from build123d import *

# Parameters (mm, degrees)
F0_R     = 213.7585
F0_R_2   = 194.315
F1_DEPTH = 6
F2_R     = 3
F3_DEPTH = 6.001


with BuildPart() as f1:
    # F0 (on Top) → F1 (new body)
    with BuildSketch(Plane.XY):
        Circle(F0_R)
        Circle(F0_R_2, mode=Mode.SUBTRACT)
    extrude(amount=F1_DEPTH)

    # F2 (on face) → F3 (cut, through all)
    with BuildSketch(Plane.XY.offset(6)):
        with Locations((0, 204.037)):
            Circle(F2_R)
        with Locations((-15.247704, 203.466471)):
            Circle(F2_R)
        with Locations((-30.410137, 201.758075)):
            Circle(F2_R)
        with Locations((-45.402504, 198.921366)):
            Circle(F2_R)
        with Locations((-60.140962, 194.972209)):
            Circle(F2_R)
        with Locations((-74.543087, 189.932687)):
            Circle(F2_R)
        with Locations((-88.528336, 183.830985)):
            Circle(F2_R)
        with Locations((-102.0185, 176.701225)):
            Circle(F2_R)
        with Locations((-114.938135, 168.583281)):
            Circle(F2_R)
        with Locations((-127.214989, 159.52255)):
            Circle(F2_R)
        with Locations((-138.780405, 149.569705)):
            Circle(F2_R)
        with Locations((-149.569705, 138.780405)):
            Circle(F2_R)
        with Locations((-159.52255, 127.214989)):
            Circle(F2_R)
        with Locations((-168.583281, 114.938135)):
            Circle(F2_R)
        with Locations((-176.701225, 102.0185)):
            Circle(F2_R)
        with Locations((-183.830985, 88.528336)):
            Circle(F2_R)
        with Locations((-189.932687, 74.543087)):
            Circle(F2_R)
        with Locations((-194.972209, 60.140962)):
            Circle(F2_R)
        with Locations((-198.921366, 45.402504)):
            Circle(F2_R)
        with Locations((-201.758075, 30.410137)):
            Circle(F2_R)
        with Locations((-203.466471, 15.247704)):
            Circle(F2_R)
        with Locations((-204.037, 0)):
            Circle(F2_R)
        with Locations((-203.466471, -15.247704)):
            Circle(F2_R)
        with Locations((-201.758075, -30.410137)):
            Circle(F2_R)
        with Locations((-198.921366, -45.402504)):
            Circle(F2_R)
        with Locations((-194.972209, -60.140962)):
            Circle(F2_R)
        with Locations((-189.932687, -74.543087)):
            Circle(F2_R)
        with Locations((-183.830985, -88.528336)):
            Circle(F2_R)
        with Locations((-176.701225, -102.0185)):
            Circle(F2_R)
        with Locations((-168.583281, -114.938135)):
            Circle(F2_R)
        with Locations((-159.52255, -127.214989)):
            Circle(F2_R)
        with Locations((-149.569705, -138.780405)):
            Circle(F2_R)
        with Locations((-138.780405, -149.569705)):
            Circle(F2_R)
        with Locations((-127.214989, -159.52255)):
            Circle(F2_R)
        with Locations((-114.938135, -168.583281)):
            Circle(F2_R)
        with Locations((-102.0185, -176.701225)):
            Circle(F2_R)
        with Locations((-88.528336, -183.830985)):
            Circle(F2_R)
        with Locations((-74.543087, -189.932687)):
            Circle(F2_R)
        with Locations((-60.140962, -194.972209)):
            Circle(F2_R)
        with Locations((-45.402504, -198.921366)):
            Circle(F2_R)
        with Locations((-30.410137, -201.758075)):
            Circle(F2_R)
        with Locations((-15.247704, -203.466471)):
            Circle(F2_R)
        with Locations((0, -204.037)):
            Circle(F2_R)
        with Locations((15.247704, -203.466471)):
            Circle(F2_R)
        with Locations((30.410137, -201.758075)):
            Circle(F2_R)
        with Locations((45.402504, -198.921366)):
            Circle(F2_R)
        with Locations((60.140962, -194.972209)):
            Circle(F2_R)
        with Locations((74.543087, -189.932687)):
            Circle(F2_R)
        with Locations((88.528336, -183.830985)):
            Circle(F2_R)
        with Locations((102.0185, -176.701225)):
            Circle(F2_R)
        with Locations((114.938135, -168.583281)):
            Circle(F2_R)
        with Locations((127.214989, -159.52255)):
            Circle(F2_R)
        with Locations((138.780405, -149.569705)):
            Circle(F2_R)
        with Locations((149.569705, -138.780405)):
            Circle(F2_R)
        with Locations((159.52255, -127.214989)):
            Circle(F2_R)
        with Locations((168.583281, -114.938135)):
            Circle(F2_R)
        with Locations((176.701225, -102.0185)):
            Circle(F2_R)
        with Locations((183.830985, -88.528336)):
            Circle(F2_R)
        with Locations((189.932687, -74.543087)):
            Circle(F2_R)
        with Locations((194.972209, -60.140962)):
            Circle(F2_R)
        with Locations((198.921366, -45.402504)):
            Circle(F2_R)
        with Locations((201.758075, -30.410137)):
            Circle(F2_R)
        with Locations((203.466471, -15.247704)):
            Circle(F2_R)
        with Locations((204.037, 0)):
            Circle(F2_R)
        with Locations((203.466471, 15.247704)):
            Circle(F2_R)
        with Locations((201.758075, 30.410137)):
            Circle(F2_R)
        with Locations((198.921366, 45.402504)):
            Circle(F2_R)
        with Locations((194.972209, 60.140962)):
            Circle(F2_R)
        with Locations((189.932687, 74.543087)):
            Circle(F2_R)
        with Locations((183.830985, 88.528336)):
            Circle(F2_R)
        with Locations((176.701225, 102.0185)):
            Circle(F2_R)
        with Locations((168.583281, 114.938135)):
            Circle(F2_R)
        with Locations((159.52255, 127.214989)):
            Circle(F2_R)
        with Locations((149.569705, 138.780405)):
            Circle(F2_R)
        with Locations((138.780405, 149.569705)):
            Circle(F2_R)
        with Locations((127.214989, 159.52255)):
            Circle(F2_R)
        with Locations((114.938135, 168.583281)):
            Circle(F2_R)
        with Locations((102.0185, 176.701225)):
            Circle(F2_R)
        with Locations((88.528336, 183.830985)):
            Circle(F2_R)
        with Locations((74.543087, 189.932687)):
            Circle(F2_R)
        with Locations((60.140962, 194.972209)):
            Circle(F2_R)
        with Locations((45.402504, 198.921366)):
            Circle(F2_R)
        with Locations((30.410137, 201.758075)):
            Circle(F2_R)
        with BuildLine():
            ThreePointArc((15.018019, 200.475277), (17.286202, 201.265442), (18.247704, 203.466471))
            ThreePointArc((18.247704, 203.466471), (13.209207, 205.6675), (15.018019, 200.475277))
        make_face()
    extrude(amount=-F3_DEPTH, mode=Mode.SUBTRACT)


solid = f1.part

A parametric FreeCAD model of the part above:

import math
import FreeCAD as App
import Part
import Sketcher

doc = App.newDocument("Part")
body = doc.addObject("PartDesign::Body", "Body")

# Sketch on XY plane
sketch1 = body.newObject("Sketcher::SketchObject", "Sketch")
sketch1.AttachmentSupport = (doc.getObject("XY_Plane"), [""])
sketch1.MapMode = "FlatFace"
sketch1.addGeometry([
    Part.Circle(App.Vector(0, 0, 0), App.Vector(0, 0, 1), 214),
    Part.Circle(App.Vector(0, 0, 0), App.Vector(0, 0, 1), 194),
], False)
sketch1.addConstraint([
    Sketcher.Constraint("Coincident", 0, 3, -1, 1),
    Sketcher.Constraint("Coincident", 1, 3, -1, 1),
    Sketcher.Constraint("Diameter", 1, 388.63),
    Sketcher.Constraint("Diameter", 0, 427.517),
])
pad1 = body.newObject("PartDesign::Pad", "Pad")
pad1.Profile = sketch1
pad1.Length = 6

# Sketch on XY plane
sketch2 = body.newObject("Sketcher::SketchObject", "Sketch001")
sketch2.AttachmentSupport = (doc.getObject("XY_Plane"), [""])
sketch2.MapMode = "FlatFace"
sketch2.AttachmentOffset = App.Placement(App.Vector(0, 0, 6), App.Rotation())
sketch2.addGeometry([
    Part.Circle(App.Vector(0, 204, 0), App.Vector(0, 0, 1), 3),  # 0
    Part.Circle(App.Vector(-15.2, 203.5, 0), App.Vector(0, 0, 1), 3),  # 1
    Part.Circle(App.Vector(-30.4, 201.8, 0), App.Vector(0, 0, 1), 3),  # 2
    Part.Circle(App.Vector(-45.4, 198.9, 0), App.Vector(0, 0, 1), 3),  # 3
    Part.Circle(App.Vector(-60.1, 195, 0), App.Vector(0, 0, 1), 3),  # 4
    Part.Circle(App.Vector(-74.5, 189.9, 0), App.Vector(0, 0, 1), 3),  # 5
    Part.Circle(App.Vector(-88.5, 183.8, 0), App.Vector(0, 0, 1), 3),  # 6
    Part.Circle(App.Vector(-102, 176.7, 0), App.Vector(0, 0, 1), 3),  # 7
    Part.Circle(App.Vector(-114.9, 168.6, 0), App.Vector(0, 0, 1), 3),  # 8
    Part.Circle(App.Vector(-127.2, 159.5, 0), App.Vector(0, 0, 1), 3),  # 9
    Part.Circle(App.Vector(-138.8, 149.6, 0), App.Vector(0, 0, 1), 3),  # 10
    Part.Circle(App.Vector(-149.6, 138.8, 0), App.Vector(0, 0, 1), 3),  # 11
    Part.Circle(App.Vector(-159.5, 127.2, 0), App.Vector(0, 0, 1), 3),  # 12
    Part.Circle(App.Vector(-168.6, 114.9, 0), App.Vector(0, 0, 1), 3),  # 13
    Part.Circle(App.Vector(-176.7, 102, 0), App.Vector(0, 0, 1), 3),  # 14
    Part.Circle(App.Vector(-183.8, 88.5, 0), App.Vector(0, 0, 1), 3),  # 15
    Part.Circle(App.Vector(-189.9, 74.5, 0), App.Vector(0, 0, 1), 3),  # 16
    Part.Circle(App.Vector(-195, 60.1, 0), App.Vector(0, 0, 1), 3),  # 17
    Part.Circle(App.Vector(-198.9, 45.4, 0), App.Vector(0, 0, 1), 3),  # 18
    Part.Circle(App.Vector(-201.8, 30.4, 0), App.Vector(0, 0, 1), 3),  # 19
    Part.Circle(App.Vector(-203.5, 15.2, 0), App.Vector(0, 0, 1), 3),  # 20
    Part.Circle(App.Vector(-204, 0, 0), App.Vector(0, 0, 1), 3),  # 21
    Part.Circle(App.Vector(-203.5, -15.2, 0), App.Vector(0, 0, 1), 3),  # 22
    Part.Circle(App.Vector(-201.8, -30.4, 0), App.Vector(0, 0, 1), 3),  # 23
    Part.Circle(App.Vector(-198.9, -45.4, 0), App.Vector(0, 0, 1), 3),  # 24
    Part.Circle(App.Vector(-195, -60.1, 0), App.Vector(0, 0, 1), 3),  # 25
    Part.Circle(App.Vector(-189.9, -74.5, 0), App.Vector(0, 0, 1), 3),  # 26
    Part.Circle(App.Vector(-183.8, -88.5, 0), App.Vector(0, 0, 1), 3),  # 27
    Part.Circle(App.Vector(-176.7, -102, 0), App.Vector(0, 0, 1), 3),  # 28
    Part.Circle(App.Vector(-168.6, -114.9, 0), App.Vector(0, 0, 1), 3),  # 29
    Part.Circle(App.Vector(-159.5, -127.2, 0), App.Vector(0, 0, 1), 3),  # 30
    Part.Circle(App.Vector(-149.6, -138.8, 0), App.Vector(0, 0, 1), 3),  # 31
    Part.Circle(App.Vector(-138.8, -149.6, 0), App.Vector(0, 0, 1), 3),  # 32
    Part.Circle(App.Vector(-127.2, -159.5, 0), App.Vector(0, 0, 1), 3),  # 33
    Part.Circle(App.Vector(-114.9, -168.6, 0), App.Vector(0, 0, 1), 3),  # 34
    Part.Circle(App.Vector(-102, -176.7, 0), App.Vector(0, 0, 1), 3),  # 35
    Part.Circle(App.Vector(-88.5, -183.8, 0), App.Vector(0, 0, 1), 3),  # 36
    Part.Circle(App.Vector(-74.5, -189.9, 0), App.Vector(0, 0, 1), 3),  # 37
    Part.Circle(App.Vector(-60.1, -195, 0), App.Vector(0, 0, 1), 3),  # 38
    Part.Circle(App.Vector(-45.4, -198.9, 0), App.Vector(0, 0, 1), 3),  # 39
    Part.Circle(App.Vector(-30.4, -201.8, 0), App.Vector(0, 0, 1), 3),  # 40
    Part.Circle(App.Vector(-15.2, -203.5, 0), App.Vector(0, 0, 1), 3),  # 41
    Part.Circle(App.Vector(0, -204, 0), App.Vector(0, 0, 1), 3),  # 42
    Part.Circle(App.Vector(15.2, -203.5, 0), App.Vector(0, 0, 1), 3),  # 43
    Part.Circle(App.Vector(30.4, -201.8, 0), App.Vector(0, 0, 1), 3),  # 44
    Part.Circle(App.Vector(45.4, -198.9, 0), App.Vector(0, 0, 1), 3),  # 45
    Part.Circle(App.Vector(60.1, -195, 0), App.Vector(0, 0, 1), 3),  # 46
    Part.Circle(App.Vector(74.5, -189.9, 0), App.Vector(0, 0, 1), 3),  # 47
    Part.Circle(App.Vector(88.5, -183.8, 0), App.Vector(0, 0, 1), 3),  # 48
    Part.Circle(App.Vector(102, -176.7, 0), App.Vector(0, 0, 1), 3),  # 49
    Part.Circle(App.Vector(114.9, -168.6, 0), App.Vector(0, 0, 1), 3),  # 50
    Part.Circle(App.Vector(127.2, -159.5, 0), App.Vector(0, 0, 1), 3),  # 51
    Part.Circle(App.Vector(138.8, -149.6, 0), App.Vector(0, 0, 1), 3),  # 52
    Part.Circle(App.Vector(149.6, -138.8, 0), App.Vector(0, 0, 1), 3),  # 53
    Part.Circle(App.Vector(159.5, -127.2, 0), App.Vector(0, 0, 1), 3),  # 54
    Part.Circle(App.Vector(168.6, -114.9, 0), App.Vector(0, 0, 1), 3),  # 55
    Part.Circle(App.Vector(176.7, -102, 0), App.Vector(0, 0, 1), 3),  # 56
    Part.Circle(App.Vector(183.8, -88.5, 0), App.Vector(0, 0, 1), 3),  # 57
    Part.Circle(App.Vector(189.9, -74.5, 0), App.Vector(0, 0, 1), 3),  # 58
    Part.Circle(App.Vector(195, -60.1, 0), App.Vector(0, 0, 1), 3),  # 59
    Part.Circle(App.Vector(198.9, -45.4, 0), App.Vector(0, 0, 1), 3),  # 60
    Part.Circle(App.Vector(201.8, -30.4, 0), App.Vector(0, 0, 1), 3),  # 61
    Part.Circle(App.Vector(203.5, -15.2, 0), App.Vector(0, 0, 1), 3),  # 62
    Part.Circle(App.Vector(204, 0, 0), App.Vector(0, 0, 1), 3),  # 63
    Part.Circle(App.Vector(203.5, 15.2, 0), App.Vector(0, 0, 1), 3),  # 64
    Part.Circle(App.Vector(201.8, 30.4, 0), App.Vector(0, 0, 1), 3),  # 65
    Part.Circle(App.Vector(198.9, 45.4, 0), App.Vector(0, 0, 1), 3),  # 66
    Part.Circle(App.Vector(195, 60.1, 0), App.Vector(0, 0, 1), 3),  # 67
    Part.Circle(App.Vector(189.9, 74.5, 0), App.Vector(0, 0, 1), 3),  # 68
    Part.Circle(App.Vector(183.8, 88.5, 0), App.Vector(0, 0, 1), 3),  # 69
    Part.Circle(App.Vector(176.7, 102, 0), App.Vector(0, 0, 1), 3),  # 70
    Part.Circle(App.Vector(168.6, 114.9, 0), App.Vector(0, 0, 1), 3),  # 71
    Part.Circle(App.Vector(159.5, 127.2, 0), App.Vector(0, 0, 1), 3),  # 72
    Part.Circle(App.Vector(149.6, 138.8, 0), App.Vector(0, 0, 1), 3),  # 73
    Part.Circle(App.Vector(138.8, 149.6, 0), App.Vector(0, 0, 1), 3),  # 74
    Part.Circle(App.Vector(127.2, 159.5, 0), App.Vector(0, 0, 1), 3),  # 75
    Part.Circle(App.Vector(114.9, 168.6, 0), App.Vector(0, 0, 1), 3),  # 76
    Part.Circle(App.Vector(102, 176.7, 0), App.Vector(0, 0, 1), 3),  # 77
    Part.Circle(App.Vector(88.5, 183.8, 0), App.Vector(0, 0, 1), 3),  # 78
    Part.Circle(App.Vector(74.5, 189.9, 0), App.Vector(0, 0, 1), 3),  # 79
    Part.Circle(App.Vector(60.1, 195, 0), App.Vector(0, 0, 1), 3),  # 80
    Part.Circle(App.Vector(45.4, 198.9, 0), App.Vector(0, 0, 1), 3),  # 81
    Part.Circle(App.Vector(30.4, 201.8, 0), App.Vector(0, 0, 1), 3),  # 82
    Part.ArcOfCircle(Part.Circle(App.Vector(15.2, 203.5, 0), App.Vector(0, 0, 1), 3), math.radians(-94), math.radians(0)),  # 83
    Part.ArcOfCircle(Part.Circle(App.Vector(15.2, 203.5, 0), App.Vector(0, 0, 1), 3), math.radians(0), math.radians(266)),  # 84
], False)
sketch2.addConstraint([
    Sketcher.Constraint("Tangent", 83, 1, 84, 2),
    Sketcher.Constraint("Coincident", 84, 1, 83, 2),
    Sketcher.Constraint("Equal", 0, 1),
    Sketcher.Constraint("Equal", 1, 2),
    Sketcher.Constraint("Equal", 2, 3),
    Sketcher.Constraint("Equal", 3, 4),
    Sketcher.Constraint("Equal", 4, 5),
    Sketcher.Constraint("Equal", 5, 6),
    Sketcher.Constraint("Equal", 6, 7),
    Sketcher.Constraint("Equal", 7, 8),
    Sketcher.Constraint("Equal", 8, 9),
    Sketcher.Constraint("Equal", 9, 10),
    Sketcher.Constraint("Equal", 10, 11),
    Sketcher.Constraint("Equal", 11, 12),
    Sketcher.Constraint("Equal", 12, 13),
    Sketcher.Constraint("Equal", 13, 14),
    Sketcher.Constraint("Equal", 14, 15),
    Sketcher.Constraint("Equal", 15, 16),
    Sketcher.Constraint("Equal", 16, 17),
    Sketcher.Constraint("Equal", 17, 18),
    Sketcher.Constraint("Equal", 18, 19),
    Sketcher.Constraint("Equal", 19, 20),
    Sketcher.Constraint("Equal", 20, 21),
    Sketcher.Constraint("Equal", 21, 22),
    Sketcher.Constraint("Equal", 22, 23),
    Sketcher.Constraint("Equal", 23, 24),
    Sketcher.Constraint("Equal", 24, 25),
    Sketcher.Constraint("Equal", 25, 26),
    Sketcher.Constraint("Equal", 26, 27),
    Sketcher.Constraint("Equal", 27, 28),
    Sketcher.Constraint("Equal", 28, 29),
    Sketcher.Constraint("Equal", 29, 30),
    Sketcher.Constraint("Equal", 30, 31),
    Sketcher.Constraint("Equal", 31, 32),
    Sketcher.Constraint("Equal", 32, 33),
    Sketcher.Constraint("Equal", 33, 34),
    Sketcher.Constraint("Equal", 34, 35),
    Sketcher.Constraint("Equal", 35, 36),
    Sketcher.Constraint("Equal", 36, 37),
    Sketcher.Constraint("Equal", 37, 38),
    Sketcher.Constraint("Equal", 38, 39),
    Sketcher.Constraint("Equal", 39, 40),
    Sketcher.Constraint("Equal", 40, 41),
    Sketcher.Constraint("Equal", 41, 42),
    Sketcher.Constraint("Equal", 42, 43),
    Sketcher.Constraint("Equal", 43, 44),
    Sketcher.Constraint("Equal", 44, 45),
    Sketcher.Constraint("Equal", 45, 46),
    Sketcher.Constraint("Equal", 46, 47),
    Sketcher.Constraint("Equal", 47, 48),
    Sketcher.Constraint("Equal", 48, 49),
    Sketcher.Constraint("Equal", 49, 50),
    Sketcher.Constraint("Equal", 50, 51),
    Sketcher.Constraint("Equal", 51, 52),
    Sketcher.Constraint("Equal", 52, 53),
    Sketcher.Constraint("Equal", 53, 54),
    Sketcher.Constraint("Equal", 54, 55),
    Sketcher.Constraint("Equal", 55, 56),
    Sketcher.Constraint("Equal", 56, 57),
    Sketcher.Constraint("Equal", 57, 58),
    Sketcher.Constraint("Equal", 58, 59),
    Sketcher.Constraint("Equal", 59, 60),
    Sketcher.Constraint("Equal", 60, 61),
    Sketcher.Constraint("Equal", 61, 62),
    Sketcher.Constraint("Equal", 62, 63),
    Sketcher.Constraint("Equal", 63, 64),
    Sketcher.Constraint("Equal", 64, 65),
    Sketcher.Constraint("Equal", 65, 66),
    Sketcher.Constraint("Equal", 66, 67),
    Sketcher.Constraint("Equal", 67, 68),
    Sketcher.Constraint("Equal", 68, 69),
    Sketcher.Constraint("Equal", 69, 70),
    Sketcher.Constraint("Equal", 70, 71),
    Sketcher.Constraint("Equal", 71, 72),
    Sketcher.Constraint("Equal", 72, 73),
    Sketcher.Constraint("Equal", 73, 74),
    Sketcher.Constraint("Equal", 74, 75),
    Sketcher.Constraint("Equal", 75, 76),
    Sketcher.Constraint("Equal", 76, 77),
    Sketcher.Constraint("Equal", 77, 78),
    Sketcher.Constraint("Equal", 78, 79),
    Sketcher.Constraint("Equal", 79, 80),
    Sketcher.Constraint("Equal", 80, 81),
    Sketcher.Constraint("Equal", 81, 82),
    Sketcher.Constraint("Equal", 82, 83),
    Sketcher.Constraint("Symmetric", 0, 3, 42, 3, -1, 1),
    Sketcher.Constraint("Symmetric", 1, 3, 43, 3, -1, 1),
    Sketcher.Constraint("Symmetric", 2, 3, 44, 3, -1, 1),
    Sketcher.Constraint("Symmetric", 3, 3, 45, 3, -1, 1),
    Sketcher.Constraint("Symmetric", 4, 3, 46, 3, -1, 1),
    Sketcher.Constraint("Symmetric", 5, 3, 47, 3, -1, 1),
    Sketcher.Constraint("Symmetric", 6, 3, 48, 3, -1, 1),
    Sketcher.Constraint("Symmetric", 7, 3, 49, 3, -1, 1),
    Sketcher.Constraint("Symmetric", 8, 3, 50, 3, -1, 1),
    Sketcher.Constraint("Symmetric", 9, 3, 51, 3, -1, 1),
    Sketcher.Constraint("Symmetric", 10, 3, 52, 3, -1, 1),
    Sketcher.Constraint("Symmetric", 11, 3, 53, 3, -1, 1),
    Sketcher.Constraint("Symmetric", 12, 3, 54, 3, -1, 1),
    Sketcher.Constraint("Symmetric", 13, 3, 55, 3, -1, 1),
    Sketcher.Constraint("Symmetric", 14, 3, 56, 3, -1, 1),
    Sketcher.Constraint("Symmetric", 15, 3, 57, 3, -1, 1),
    Sketcher.Constraint("Symmetric", 16, 3, 58, 3, -1, 1),
    Sketcher.Constraint("Symmetric", 17, 3, 59, 3, -1, 1),
    Sketcher.Constraint("Symmetric", 18, 3, 60, 3, -1, 1),
    Sketcher.Constraint("Symmetric", 19, 3, 61, 3, -1, 1),
    Sketcher.Constraint("Symmetric", 20, 3, 62, 3, -1, 1),
    Sketcher.Constraint("Symmetric", 21, 3, 63, 3, -1, 1),
    Sketcher.Constraint("Symmetric", 22, 3, 64, 3, -1, 1),
    Sketcher.Constraint("Symmetric", 23, 3, 65, 3, -1, 1),
    Sketcher.Constraint("Symmetric", 24, 3, 66, 3, -1, 1),
    Sketcher.Constraint("Symmetric", 25, 3, 67, 3, -1, 1),
    Sketcher.Constraint("Symmetric", 26, 3, 68, 3, -1, 1),
    Sketcher.Constraint("Symmetric", 27, 3, 69, 3, -1, 1),
    Sketcher.Constraint("Symmetric", 28, 3, 70, 3, -1, 1),
    Sketcher.Constraint("Symmetric", 29, 3, 71, 3, -1, 1),
    Sketcher.Constraint("Symmetric", 30, 3, 72, 3, -1, 1),
    Sketcher.Constraint("Symmetric", 31, 3, 73, 3, -1, 1),
    Sketcher.Constraint("Symmetric", 32, 3, 74, 3, -1, 1),
    Sketcher.Constraint("Symmetric", 33, 3, 75, 3, -1, 1),
    Sketcher.Constraint("Symmetric", 34, 3, 76, 3, -1, 1),
    Sketcher.Constraint("Symmetric", 35, 3, 77, 3, -1, 1),
    Sketcher.Constraint("Symmetric", 36, 3, 78, 3, -1, 1),
    Sketcher.Constraint("Symmetric", 37, 3, 79, 3, -1, 1),
    Sketcher.Constraint("Symmetric", 38, 3, 80, 3, -1, 1),
    Sketcher.Constraint("Symmetric", 39, 3, 81, 3, -1, 1),
    Sketcher.Constraint("Symmetric", 40, 3, 82, 3, -1, 1),
    Sketcher.Constraint("Symmetric", 41, 3, 83, 3, -1, 1),
    Sketcher.Constraint("Symmetric", 41, 3, 43, 3, -2),
    Sketcher.Constraint("Symmetric", 40, 3, 44, 3, -2),
    Sketcher.Constraint("Symmetric", 39, 3, 45, 3, -2),
    Sketcher.Constraint("Symmetric", 38, 3, 46, 3, -2),
    Sketcher.Constraint("Symmetric", 37, 3, 47, 3, -2),
    Sketcher.Constraint("Symmetric", 36, 3, 48, 3, -2),
    Sketcher.Constraint("Symmetric", 35, 3, 49, 3, -2),
    Sketcher.Constraint("Symmetric", 34, 3, 50, 3, -2),
    Sketcher.Constraint("Symmetric", 33, 3, 51, 3, -2),
    Sketcher.Constraint("Symmetric", 32, 3, 52, 3, -2),
    Sketcher.Constraint("Symmetric", 31, 3, 53, 3, -2),
    Sketcher.Constraint("Symmetric", 30, 3, 54, 3, -2),
    Sketcher.Constraint("Symmetric", 29, 3, 55, 3, -2),
    Sketcher.Constraint("Symmetric", 28, 3, 56, 3, -2),
    Sketcher.Constraint("Symmetric", 27, 3, 57, 3, -2),
    Sketcher.Constraint("Symmetric", 26, 3, 58, 3, -2),
    Sketcher.Constraint("Symmetric", 25, 3, 59, 3, -2),
    Sketcher.Constraint("Symmetric", 24, 3, 60, 3, -2),
    Sketcher.Constraint("Symmetric", 23, 3, 61, 3, -2),
    Sketcher.Constraint("Symmetric", 22, 3, 62, 3, -2),
    Sketcher.Constraint("PointOnObject", 0, 3, -2),
    Sketcher.Constraint("PointOnObject", 21, 3, -1),
    Sketcher.Constraint("Horizontal", 83, 3, 84, 1),
    Sketcher.Constraint("Diameter", 0, 6.0),
    Sketcher.Constraint("DistanceY", -1, 1, 0, 3, 204.037),
    Sketcher.Constraint("DistanceX", 21, 3, -1, 1, 204.037),
    Sketcher.Constraint("DistanceX", 7, 3, -1, 1, 102.0185),
    Sketcher.Constraint("DistanceY", -1, 1, 14, 3, 102.0185),
    Sketcher.Constraint("DistanceY", -1, 1, 1, 3, 203.466471),
    Sketcher.Constraint("DistanceY", -1, 1, 4, 3, 194.972209),
    Sketcher.Constraint("DistanceY", -1, 1, 8, 3, 168.583281),
    Sketcher.Constraint("DistanceX", 9, 3, -1, 1, 127.214989),
    Sketcher.Constraint("DistanceY", -1, 1, 9, 3, 159.52255),
    Sketcher.Constraint("DistanceX", 12, 3, -1, 1, 159.52255),
    Sketcher.Constraint("DistanceY", -1, 1, 12, 3, 127.214989),
    Sketcher.Constraint("DistanceX", 13, 3, -1, 1, 168.583281),
    Sketcher.Constraint("DistanceX", 17, 3, -1, 1, 194.972209),
    Sketcher.Constraint("DistanceX", 20, 3, -1, 1, 203.466471),
    Sketcher.Constraint("DistanceX", -1, 1, 83, 1, 15.018019),
    Sketcher.Constraint("DistanceX", 1, 3, -1, 1, 15.247704),
    Sketcher.Constraint("DistanceX", 2, 3, -1, 1, 30.410137),
    Sketcher.Constraint("DistanceY", -1, 1, 2, 3, 201.758075),
    Sketcher.Constraint("DistanceX", 3, 3, -1, 1, 45.402504),
    Sketcher.Constraint("DistanceY", -1, 1, 3, 3, 198.921366),
    Sketcher.Constraint("DistanceX", 4, 3, -1, 1, 60.140962),
    Sketcher.Constraint("DistanceX", 5, 3, -1, 1, 74.543087),
    Sketcher.Constraint("DistanceY", -1, 1, 5, 3, 189.932687),
    Sketcher.Constraint("DistanceX", 6, 3, -1, 1, 88.528336),
    Sketcher.Constraint("DistanceY", -1, 1, 6, 3, 183.830985),
    Sketcher.Constraint("DistanceY", -1, 1, 7, 3, 176.701225),
    Sketcher.Constraint("DistanceX", 8, 3, -1, 1, 114.938135),
    Sketcher.Constraint("DistanceX", 10, 3, -1, 1, 138.780405),
    Sketcher.Constraint("DistanceY", -1, 1, 10, 3, 149.569705),
    Sketcher.Constraint("DistanceX", 11, 3, -1, 1, 149.569705),
    Sketcher.Constraint("DistanceY", -1, 1, 11, 3, 138.780405),
    Sketcher.Constraint("DistanceY", -1, 1, 13, 3, 114.938135),
    Sketcher.Constraint("DistanceX", 14, 3, -1, 1, 176.701225),
    Sketcher.Constraint("DistanceX", 15, 3, -1, 1, 183.830985),
    Sketcher.Constraint("DistanceY", -1, 1, 15, 3, 88.528336),
    Sketcher.Constraint("DistanceX", 16, 3, -1, 1, 189.932687),
    Sketcher.Constraint("DistanceY", -1, 1, 16, 3, 74.543087),
    Sketcher.Constraint("DistanceY", -1, 1, 17, 3, 60.140962),
    Sketcher.Constraint("DistanceX", 18, 3, -1, 1, 198.921366),
    Sketcher.Constraint("DistanceY", -1, 1, 18, 3, 45.402504),
    Sketcher.Constraint("DistanceX", 19, 3, -1, 1, 201.758075),
    Sketcher.Constraint("DistanceY", -1, 1, 19, 3, 30.410137),
    Sketcher.Constraint("DistanceY", -1, 1, 20, 3, 15.247704),
])
pocket1 = body.newObject("PartDesign::Pocket", "Pocket")
pocket1.Profile = sketch2
pocket1.Type = "ThroughAll"

doc.recompute()
